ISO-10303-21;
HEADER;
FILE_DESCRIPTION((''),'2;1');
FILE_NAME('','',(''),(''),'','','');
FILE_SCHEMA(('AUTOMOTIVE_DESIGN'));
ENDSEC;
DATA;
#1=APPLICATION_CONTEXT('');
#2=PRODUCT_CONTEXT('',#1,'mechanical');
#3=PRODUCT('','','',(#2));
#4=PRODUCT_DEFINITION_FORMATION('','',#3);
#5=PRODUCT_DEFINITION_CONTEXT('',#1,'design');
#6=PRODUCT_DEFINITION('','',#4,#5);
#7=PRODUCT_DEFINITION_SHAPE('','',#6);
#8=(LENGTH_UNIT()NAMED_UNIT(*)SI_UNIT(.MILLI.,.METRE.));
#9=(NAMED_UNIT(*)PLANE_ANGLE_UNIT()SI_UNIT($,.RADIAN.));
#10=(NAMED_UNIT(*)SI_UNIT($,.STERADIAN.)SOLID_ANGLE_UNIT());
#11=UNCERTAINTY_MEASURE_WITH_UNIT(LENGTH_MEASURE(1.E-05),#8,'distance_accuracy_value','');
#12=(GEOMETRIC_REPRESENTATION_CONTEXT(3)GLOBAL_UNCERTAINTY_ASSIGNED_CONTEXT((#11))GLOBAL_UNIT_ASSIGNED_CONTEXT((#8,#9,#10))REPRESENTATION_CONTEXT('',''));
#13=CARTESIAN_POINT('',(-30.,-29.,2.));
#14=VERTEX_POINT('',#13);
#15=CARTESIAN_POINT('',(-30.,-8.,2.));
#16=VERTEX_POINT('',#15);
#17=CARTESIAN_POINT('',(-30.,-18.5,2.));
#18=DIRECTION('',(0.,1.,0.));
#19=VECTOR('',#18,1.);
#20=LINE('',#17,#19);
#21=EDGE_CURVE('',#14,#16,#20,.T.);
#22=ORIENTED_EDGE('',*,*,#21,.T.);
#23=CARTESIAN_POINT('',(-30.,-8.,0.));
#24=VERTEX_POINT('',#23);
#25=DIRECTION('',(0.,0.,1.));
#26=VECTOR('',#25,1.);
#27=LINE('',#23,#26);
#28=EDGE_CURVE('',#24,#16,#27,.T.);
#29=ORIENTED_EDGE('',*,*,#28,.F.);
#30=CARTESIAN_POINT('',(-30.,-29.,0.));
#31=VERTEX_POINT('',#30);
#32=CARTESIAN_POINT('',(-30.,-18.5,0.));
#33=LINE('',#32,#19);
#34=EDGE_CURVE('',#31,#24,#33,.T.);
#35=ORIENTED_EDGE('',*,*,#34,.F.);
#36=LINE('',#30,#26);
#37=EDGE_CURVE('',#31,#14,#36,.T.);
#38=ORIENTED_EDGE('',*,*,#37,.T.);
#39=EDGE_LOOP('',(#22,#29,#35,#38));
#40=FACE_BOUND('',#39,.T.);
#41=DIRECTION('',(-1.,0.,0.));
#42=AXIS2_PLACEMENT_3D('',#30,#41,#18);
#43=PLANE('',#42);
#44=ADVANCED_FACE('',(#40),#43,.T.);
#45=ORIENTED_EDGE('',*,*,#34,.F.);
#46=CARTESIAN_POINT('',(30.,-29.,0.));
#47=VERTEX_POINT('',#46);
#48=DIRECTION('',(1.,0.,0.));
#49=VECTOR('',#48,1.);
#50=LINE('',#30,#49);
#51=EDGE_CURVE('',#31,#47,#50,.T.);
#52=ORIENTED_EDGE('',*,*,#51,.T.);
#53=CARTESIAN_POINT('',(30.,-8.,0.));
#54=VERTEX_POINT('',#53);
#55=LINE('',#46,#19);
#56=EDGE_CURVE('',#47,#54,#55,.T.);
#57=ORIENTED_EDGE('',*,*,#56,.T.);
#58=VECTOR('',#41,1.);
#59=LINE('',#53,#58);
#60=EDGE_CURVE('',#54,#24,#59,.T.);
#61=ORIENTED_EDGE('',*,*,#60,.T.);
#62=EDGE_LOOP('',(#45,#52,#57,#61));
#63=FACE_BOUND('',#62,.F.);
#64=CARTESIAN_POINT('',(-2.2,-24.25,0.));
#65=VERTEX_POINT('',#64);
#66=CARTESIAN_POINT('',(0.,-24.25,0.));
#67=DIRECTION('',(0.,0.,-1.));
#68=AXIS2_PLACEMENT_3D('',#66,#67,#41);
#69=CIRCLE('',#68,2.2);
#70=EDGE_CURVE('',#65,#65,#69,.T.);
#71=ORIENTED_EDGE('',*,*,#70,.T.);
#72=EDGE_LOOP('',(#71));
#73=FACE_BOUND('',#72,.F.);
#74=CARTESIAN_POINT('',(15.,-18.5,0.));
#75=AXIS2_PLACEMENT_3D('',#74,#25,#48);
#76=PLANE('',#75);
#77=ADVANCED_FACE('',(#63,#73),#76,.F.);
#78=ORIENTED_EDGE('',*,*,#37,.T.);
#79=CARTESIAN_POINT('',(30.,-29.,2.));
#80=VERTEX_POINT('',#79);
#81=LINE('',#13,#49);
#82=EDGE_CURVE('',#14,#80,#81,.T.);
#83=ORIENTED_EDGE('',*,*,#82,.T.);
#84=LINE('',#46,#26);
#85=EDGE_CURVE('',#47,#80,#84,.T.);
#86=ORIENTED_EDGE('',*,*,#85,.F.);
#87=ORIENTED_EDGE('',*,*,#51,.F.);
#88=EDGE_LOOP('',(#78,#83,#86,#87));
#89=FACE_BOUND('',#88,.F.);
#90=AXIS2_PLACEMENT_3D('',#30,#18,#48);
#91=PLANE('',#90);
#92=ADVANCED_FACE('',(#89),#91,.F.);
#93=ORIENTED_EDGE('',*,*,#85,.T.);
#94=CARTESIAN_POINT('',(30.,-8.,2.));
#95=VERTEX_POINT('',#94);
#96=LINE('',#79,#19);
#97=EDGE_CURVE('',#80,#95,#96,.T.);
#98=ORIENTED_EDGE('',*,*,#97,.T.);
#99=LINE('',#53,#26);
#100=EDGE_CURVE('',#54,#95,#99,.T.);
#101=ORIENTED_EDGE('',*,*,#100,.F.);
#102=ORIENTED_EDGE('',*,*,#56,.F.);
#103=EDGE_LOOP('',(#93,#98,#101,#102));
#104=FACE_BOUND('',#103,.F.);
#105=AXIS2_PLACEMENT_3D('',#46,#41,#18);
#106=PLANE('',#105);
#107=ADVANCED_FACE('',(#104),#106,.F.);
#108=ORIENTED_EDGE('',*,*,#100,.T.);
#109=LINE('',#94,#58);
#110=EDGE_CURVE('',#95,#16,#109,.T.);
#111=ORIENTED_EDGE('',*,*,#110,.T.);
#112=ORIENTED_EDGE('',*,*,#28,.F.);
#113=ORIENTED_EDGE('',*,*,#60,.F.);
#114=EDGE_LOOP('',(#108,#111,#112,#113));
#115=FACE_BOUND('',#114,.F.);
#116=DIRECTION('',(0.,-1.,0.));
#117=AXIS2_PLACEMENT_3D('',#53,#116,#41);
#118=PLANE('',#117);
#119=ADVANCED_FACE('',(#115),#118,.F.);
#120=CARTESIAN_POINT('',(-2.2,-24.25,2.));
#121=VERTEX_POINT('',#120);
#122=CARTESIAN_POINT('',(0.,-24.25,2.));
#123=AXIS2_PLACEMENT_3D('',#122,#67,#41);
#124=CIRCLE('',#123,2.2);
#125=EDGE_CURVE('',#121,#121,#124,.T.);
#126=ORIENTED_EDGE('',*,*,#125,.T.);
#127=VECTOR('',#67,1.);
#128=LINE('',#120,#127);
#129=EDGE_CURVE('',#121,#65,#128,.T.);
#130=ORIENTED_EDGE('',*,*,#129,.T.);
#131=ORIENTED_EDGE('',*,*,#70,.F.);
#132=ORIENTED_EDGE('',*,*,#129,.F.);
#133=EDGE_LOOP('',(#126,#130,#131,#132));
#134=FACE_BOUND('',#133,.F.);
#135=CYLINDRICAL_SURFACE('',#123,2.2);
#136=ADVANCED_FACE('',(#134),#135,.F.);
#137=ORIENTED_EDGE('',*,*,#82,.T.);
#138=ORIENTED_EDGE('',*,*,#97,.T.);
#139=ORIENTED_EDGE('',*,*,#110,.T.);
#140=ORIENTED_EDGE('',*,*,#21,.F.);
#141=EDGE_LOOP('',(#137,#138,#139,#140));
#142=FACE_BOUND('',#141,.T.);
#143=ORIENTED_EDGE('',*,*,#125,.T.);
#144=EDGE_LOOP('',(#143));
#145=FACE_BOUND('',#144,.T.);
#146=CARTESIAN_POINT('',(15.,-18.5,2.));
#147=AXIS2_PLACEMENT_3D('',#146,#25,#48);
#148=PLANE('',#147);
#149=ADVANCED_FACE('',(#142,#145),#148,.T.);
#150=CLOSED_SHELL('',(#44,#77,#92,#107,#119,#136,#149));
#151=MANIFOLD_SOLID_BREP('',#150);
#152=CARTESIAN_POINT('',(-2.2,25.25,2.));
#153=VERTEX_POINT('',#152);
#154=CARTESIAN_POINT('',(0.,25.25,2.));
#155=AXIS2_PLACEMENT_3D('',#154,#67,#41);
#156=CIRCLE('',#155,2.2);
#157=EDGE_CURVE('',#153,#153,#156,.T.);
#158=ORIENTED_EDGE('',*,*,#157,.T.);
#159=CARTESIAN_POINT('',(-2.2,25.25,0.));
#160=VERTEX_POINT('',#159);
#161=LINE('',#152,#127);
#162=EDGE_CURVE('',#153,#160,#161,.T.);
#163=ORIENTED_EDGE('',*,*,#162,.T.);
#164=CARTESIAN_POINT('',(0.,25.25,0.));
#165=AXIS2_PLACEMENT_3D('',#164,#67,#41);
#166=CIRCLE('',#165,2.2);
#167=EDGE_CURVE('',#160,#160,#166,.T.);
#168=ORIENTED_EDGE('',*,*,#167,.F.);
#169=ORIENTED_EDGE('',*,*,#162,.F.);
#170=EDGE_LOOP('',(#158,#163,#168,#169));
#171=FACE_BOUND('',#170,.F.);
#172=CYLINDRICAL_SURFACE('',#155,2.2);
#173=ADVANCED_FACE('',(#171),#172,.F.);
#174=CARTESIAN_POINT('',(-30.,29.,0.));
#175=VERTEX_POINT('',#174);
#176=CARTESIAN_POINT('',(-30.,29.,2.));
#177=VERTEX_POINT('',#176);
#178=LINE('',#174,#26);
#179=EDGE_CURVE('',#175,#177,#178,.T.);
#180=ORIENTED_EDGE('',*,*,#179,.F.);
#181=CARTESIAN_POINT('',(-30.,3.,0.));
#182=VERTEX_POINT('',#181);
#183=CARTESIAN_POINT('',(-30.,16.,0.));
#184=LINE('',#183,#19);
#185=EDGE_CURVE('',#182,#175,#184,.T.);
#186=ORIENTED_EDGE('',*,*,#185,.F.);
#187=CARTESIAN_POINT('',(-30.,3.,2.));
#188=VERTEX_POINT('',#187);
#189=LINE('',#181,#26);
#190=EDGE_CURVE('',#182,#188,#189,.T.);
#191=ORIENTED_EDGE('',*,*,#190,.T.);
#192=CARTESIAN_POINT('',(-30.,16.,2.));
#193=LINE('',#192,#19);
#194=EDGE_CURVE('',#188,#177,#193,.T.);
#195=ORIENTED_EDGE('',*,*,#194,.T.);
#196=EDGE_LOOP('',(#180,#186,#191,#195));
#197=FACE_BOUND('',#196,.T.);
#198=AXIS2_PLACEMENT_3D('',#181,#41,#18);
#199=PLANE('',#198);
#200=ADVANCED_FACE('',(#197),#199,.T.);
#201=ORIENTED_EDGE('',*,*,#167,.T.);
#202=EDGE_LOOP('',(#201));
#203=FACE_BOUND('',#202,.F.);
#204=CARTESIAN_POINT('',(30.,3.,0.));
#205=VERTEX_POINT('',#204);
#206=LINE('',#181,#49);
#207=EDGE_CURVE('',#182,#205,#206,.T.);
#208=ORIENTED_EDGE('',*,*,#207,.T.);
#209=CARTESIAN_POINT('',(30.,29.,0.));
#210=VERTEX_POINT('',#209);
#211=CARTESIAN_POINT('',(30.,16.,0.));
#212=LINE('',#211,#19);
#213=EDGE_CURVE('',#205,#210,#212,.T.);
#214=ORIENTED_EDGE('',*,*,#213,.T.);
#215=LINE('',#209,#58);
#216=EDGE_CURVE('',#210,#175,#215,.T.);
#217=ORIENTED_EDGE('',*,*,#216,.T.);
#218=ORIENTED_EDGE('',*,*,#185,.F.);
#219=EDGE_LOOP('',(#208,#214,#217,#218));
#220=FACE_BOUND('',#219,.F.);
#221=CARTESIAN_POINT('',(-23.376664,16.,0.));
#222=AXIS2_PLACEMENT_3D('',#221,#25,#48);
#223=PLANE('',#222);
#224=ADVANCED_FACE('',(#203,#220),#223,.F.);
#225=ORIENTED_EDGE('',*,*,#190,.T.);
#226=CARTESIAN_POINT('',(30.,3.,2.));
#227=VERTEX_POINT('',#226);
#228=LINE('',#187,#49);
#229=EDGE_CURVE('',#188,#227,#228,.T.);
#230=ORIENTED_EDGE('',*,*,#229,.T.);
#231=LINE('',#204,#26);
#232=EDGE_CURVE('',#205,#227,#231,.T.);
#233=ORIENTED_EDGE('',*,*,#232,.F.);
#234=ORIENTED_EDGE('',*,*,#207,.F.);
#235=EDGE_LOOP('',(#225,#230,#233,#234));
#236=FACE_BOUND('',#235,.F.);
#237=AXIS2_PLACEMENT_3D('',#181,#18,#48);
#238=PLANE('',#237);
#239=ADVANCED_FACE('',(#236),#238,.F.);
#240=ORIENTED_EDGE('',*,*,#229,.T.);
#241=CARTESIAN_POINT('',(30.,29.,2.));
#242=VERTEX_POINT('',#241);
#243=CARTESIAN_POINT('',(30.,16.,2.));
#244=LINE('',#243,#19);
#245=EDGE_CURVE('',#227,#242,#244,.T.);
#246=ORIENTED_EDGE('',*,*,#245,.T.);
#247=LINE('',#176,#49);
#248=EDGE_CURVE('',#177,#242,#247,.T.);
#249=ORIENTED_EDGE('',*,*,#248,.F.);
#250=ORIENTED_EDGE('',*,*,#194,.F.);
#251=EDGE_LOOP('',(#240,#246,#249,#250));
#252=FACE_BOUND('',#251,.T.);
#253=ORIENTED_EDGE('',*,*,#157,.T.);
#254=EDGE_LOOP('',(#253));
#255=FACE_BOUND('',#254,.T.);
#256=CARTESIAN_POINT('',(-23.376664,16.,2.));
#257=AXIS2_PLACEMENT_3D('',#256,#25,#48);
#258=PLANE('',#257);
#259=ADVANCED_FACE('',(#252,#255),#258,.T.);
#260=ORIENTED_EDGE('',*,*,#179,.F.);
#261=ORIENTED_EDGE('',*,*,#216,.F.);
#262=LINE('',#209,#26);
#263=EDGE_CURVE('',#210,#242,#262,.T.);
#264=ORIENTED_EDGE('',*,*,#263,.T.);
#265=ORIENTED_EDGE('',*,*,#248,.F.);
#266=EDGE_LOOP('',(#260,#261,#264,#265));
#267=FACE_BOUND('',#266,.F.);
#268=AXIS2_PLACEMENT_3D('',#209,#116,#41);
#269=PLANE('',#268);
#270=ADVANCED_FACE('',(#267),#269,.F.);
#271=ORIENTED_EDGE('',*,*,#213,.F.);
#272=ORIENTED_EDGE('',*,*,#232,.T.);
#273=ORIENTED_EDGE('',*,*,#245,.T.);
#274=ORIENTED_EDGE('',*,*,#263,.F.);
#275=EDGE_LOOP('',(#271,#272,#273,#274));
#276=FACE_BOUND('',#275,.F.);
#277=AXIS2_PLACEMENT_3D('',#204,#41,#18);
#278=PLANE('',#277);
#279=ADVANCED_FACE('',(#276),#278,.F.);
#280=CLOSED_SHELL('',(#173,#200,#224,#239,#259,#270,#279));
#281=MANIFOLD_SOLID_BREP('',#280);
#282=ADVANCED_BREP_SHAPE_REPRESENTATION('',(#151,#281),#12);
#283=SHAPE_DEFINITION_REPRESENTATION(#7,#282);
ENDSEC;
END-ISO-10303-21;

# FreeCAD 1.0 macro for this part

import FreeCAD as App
import Part
import Sketcher

V = App.Vector
Q = App.Units.Quantity


def add_polygon(sketch, points):
    """Adds a closed chain of lines whose ends are joined by coincident constraints."""
    first, n = sketch.GeometryCount, len(points)
    for a, b in zip(points, points[1:] + points[:1]):
        sketch.addGeometry(Part.LineSegment(App.Vector(*a, 0), App.Vector(*b, 0)), False)
    for i in range(n):
        sketch.addConstraint(Sketcher.Constraint("Coincident", first + i, 2, first + (i + 1) % n, 1))

doc = App.newDocument("Part")
body = doc.addObject("PartDesign::Body", "Body")

sketch1 = body.newObject("Sketcher::SketchObject", "Sketch")
sketch1.AttachmentSupport = (doc.getObject("XY_Plane"), [""])
sketch1.MapMode = "FlatFace"
add_polygon(sketch1, [(-30, 29), (-30, 3), (30, 3), (30, 29)])
sketch1.addConstraint([
    Sketcher.Constraint("Vertical", 0),
    Sketcher.Constraint("Horizontal", 1),
    Sketcher.Constraint("Vertical", 2),
    Sketcher.Constraint("Horizontal", 3),
    Sketcher.Constraint("DistanceX", 1, 1, 1, 2, Q("60 mm")),
    Sketcher.Constraint("DistanceY", 0, 2, 0, 1, Q("26 mm")),
    Sketcher.Constraint("DistanceX", 0, 2, -1, 1, Q("30 mm")),
    Sketcher.Constraint("DistanceY", -1, 1, 0, 2, Q("3 mm")),
])
pad1 = body.newObject("PartDesign::Pad", "Pad")
pad1.Profile = sketch1
pad1.Length = 2

sketch2 = body.newObject("Sketcher::SketchObject", "Sketch001")
sketch2.AttachmentSupport = (doc.getObject("XY_Plane"), [""])
sketch2.MapMode = "FlatFace"
sketch2.AttachmentOffset = App.Placement(V(0, 0, 2), App.Rotation())
sketch2.addGeometry([
    Part.Circle(V(0, 25.2, 0), V(0, 0, 1), 2.2),
    Part.Circle(V(0, -24.2, 0), V(0, 0, 1), 2.2),
], False)
sketch2.addConstraint([
    Sketcher.Constraint("Equal", 0, 1),
    Sketcher.Constraint("PointOnObject", 0, 3, -2),
    Sketcher.Constraint("PointOnObject", 1, 3, -2),
    Sketcher.Constraint("Diameter", 0, Q("4.4 mm")),
    Sketcher.Constraint("DistanceY", 1, 3, 0, 3, Q("49.5 mm")),
    Sketcher.Constraint("DistanceY", -1, 1, 0, 3, Q("25.25 mm")),
])
doc.recompute()
hole = body.newObject("PartDesign::Hole", "Hole")
hole.Profile = sketch2
hole.ThreadType = "None"
hole.Diameter = 4.4
hole.DepthType = "ThroughAll"
hole.HoleCutType = "Counterbore"
hole.HoleCutDiameter = 8.25
hole.HoleCutDepth = 0
body2 = doc.addObject("PartDesign::Body", "Body001")

sketch3 = body2.newObject("Sketcher::SketchObject", "Sketch002")
sketch3.AttachmentSupport = (doc.getObject("XY_Plane001"), [""])
sketch3.MapMode = "FlatFace"
add_polygon(sketch3, [(30, -8), (-30, -8), (-30, -29), (30, -29)])
sketch3.addConstraint([
    Sketcher.Constraint("Horizontal", 0),
    Sketcher.Constraint("Vertical", 1),
    Sketcher.Constraint("Horizontal", 2),
    Sketcher.Constraint("Vertical", 3),
    Sketcher.Constraint("DistanceX", 0, 2, 0, 1, Q("60 mm")),
    Sketcher.Constraint("DistanceY", 1, 2, 1, 1, Q("21 mm")),
    Sketcher.Constraint("DistanceX", 0, 2, -1, 1, Q("30 mm")),
    Sketcher.Constraint("DistanceY", 0, 2, -1, 1, Q("8 mm")),
])
pad2 = body2.newObject("PartDesign::Pad", "Pad001")
pad2.Profile = sketch3
pad2.Length = 2

sketch4 = body2.newObject("Sketcher::SketchObject", "Sketch003")
sketch4.AttachmentSupport = (doc.getObject("XY_Plane001"), [""])
sketch4.MapMode = "FlatFace"
sketch4.AttachmentOffset = App.Placement(V(0, 0, 2), App.Rotation())
sketch4.addGeometry([
    Part.Circle(V(0, 25.2, 0), V(0, 0, 1), 2.2),
    Part.Circle(V(0, -24.2, 0), V(0, 0, 1), 2.2),
], False)
sketch4.addConstraint([
    Sketcher.Constraint("Equal", 0, 1),
    Sketcher.Constraint("PointOnObject", 0, 3, -2),
    Sketcher.Constraint("PointOnObject", 1, 3, -2),
    Sketcher.Constraint("Diameter", 0, Q("4.4 mm")),
    Sketcher.Constraint("DistanceY", 1, 3, 0, 3, Q("49.5 mm")),
    Sketcher.Constraint("DistanceY", -1, 1, 0, 3, Q("25.25 mm")),
])
doc.recompute()
hole2 = body2.newObject("PartDesign::Hole", "Hole001")
hole2.Profile = sketch4
hole2.ThreadType = "None"
hole2.Diameter = 4.4
hole2.DepthType = "ThroughAll"
hole2.HoleCutType = "Counterbore"
hole2.HoleCutDiameter = 8.25
hole2.HoleCutDepth = 0

doc.recompute()
